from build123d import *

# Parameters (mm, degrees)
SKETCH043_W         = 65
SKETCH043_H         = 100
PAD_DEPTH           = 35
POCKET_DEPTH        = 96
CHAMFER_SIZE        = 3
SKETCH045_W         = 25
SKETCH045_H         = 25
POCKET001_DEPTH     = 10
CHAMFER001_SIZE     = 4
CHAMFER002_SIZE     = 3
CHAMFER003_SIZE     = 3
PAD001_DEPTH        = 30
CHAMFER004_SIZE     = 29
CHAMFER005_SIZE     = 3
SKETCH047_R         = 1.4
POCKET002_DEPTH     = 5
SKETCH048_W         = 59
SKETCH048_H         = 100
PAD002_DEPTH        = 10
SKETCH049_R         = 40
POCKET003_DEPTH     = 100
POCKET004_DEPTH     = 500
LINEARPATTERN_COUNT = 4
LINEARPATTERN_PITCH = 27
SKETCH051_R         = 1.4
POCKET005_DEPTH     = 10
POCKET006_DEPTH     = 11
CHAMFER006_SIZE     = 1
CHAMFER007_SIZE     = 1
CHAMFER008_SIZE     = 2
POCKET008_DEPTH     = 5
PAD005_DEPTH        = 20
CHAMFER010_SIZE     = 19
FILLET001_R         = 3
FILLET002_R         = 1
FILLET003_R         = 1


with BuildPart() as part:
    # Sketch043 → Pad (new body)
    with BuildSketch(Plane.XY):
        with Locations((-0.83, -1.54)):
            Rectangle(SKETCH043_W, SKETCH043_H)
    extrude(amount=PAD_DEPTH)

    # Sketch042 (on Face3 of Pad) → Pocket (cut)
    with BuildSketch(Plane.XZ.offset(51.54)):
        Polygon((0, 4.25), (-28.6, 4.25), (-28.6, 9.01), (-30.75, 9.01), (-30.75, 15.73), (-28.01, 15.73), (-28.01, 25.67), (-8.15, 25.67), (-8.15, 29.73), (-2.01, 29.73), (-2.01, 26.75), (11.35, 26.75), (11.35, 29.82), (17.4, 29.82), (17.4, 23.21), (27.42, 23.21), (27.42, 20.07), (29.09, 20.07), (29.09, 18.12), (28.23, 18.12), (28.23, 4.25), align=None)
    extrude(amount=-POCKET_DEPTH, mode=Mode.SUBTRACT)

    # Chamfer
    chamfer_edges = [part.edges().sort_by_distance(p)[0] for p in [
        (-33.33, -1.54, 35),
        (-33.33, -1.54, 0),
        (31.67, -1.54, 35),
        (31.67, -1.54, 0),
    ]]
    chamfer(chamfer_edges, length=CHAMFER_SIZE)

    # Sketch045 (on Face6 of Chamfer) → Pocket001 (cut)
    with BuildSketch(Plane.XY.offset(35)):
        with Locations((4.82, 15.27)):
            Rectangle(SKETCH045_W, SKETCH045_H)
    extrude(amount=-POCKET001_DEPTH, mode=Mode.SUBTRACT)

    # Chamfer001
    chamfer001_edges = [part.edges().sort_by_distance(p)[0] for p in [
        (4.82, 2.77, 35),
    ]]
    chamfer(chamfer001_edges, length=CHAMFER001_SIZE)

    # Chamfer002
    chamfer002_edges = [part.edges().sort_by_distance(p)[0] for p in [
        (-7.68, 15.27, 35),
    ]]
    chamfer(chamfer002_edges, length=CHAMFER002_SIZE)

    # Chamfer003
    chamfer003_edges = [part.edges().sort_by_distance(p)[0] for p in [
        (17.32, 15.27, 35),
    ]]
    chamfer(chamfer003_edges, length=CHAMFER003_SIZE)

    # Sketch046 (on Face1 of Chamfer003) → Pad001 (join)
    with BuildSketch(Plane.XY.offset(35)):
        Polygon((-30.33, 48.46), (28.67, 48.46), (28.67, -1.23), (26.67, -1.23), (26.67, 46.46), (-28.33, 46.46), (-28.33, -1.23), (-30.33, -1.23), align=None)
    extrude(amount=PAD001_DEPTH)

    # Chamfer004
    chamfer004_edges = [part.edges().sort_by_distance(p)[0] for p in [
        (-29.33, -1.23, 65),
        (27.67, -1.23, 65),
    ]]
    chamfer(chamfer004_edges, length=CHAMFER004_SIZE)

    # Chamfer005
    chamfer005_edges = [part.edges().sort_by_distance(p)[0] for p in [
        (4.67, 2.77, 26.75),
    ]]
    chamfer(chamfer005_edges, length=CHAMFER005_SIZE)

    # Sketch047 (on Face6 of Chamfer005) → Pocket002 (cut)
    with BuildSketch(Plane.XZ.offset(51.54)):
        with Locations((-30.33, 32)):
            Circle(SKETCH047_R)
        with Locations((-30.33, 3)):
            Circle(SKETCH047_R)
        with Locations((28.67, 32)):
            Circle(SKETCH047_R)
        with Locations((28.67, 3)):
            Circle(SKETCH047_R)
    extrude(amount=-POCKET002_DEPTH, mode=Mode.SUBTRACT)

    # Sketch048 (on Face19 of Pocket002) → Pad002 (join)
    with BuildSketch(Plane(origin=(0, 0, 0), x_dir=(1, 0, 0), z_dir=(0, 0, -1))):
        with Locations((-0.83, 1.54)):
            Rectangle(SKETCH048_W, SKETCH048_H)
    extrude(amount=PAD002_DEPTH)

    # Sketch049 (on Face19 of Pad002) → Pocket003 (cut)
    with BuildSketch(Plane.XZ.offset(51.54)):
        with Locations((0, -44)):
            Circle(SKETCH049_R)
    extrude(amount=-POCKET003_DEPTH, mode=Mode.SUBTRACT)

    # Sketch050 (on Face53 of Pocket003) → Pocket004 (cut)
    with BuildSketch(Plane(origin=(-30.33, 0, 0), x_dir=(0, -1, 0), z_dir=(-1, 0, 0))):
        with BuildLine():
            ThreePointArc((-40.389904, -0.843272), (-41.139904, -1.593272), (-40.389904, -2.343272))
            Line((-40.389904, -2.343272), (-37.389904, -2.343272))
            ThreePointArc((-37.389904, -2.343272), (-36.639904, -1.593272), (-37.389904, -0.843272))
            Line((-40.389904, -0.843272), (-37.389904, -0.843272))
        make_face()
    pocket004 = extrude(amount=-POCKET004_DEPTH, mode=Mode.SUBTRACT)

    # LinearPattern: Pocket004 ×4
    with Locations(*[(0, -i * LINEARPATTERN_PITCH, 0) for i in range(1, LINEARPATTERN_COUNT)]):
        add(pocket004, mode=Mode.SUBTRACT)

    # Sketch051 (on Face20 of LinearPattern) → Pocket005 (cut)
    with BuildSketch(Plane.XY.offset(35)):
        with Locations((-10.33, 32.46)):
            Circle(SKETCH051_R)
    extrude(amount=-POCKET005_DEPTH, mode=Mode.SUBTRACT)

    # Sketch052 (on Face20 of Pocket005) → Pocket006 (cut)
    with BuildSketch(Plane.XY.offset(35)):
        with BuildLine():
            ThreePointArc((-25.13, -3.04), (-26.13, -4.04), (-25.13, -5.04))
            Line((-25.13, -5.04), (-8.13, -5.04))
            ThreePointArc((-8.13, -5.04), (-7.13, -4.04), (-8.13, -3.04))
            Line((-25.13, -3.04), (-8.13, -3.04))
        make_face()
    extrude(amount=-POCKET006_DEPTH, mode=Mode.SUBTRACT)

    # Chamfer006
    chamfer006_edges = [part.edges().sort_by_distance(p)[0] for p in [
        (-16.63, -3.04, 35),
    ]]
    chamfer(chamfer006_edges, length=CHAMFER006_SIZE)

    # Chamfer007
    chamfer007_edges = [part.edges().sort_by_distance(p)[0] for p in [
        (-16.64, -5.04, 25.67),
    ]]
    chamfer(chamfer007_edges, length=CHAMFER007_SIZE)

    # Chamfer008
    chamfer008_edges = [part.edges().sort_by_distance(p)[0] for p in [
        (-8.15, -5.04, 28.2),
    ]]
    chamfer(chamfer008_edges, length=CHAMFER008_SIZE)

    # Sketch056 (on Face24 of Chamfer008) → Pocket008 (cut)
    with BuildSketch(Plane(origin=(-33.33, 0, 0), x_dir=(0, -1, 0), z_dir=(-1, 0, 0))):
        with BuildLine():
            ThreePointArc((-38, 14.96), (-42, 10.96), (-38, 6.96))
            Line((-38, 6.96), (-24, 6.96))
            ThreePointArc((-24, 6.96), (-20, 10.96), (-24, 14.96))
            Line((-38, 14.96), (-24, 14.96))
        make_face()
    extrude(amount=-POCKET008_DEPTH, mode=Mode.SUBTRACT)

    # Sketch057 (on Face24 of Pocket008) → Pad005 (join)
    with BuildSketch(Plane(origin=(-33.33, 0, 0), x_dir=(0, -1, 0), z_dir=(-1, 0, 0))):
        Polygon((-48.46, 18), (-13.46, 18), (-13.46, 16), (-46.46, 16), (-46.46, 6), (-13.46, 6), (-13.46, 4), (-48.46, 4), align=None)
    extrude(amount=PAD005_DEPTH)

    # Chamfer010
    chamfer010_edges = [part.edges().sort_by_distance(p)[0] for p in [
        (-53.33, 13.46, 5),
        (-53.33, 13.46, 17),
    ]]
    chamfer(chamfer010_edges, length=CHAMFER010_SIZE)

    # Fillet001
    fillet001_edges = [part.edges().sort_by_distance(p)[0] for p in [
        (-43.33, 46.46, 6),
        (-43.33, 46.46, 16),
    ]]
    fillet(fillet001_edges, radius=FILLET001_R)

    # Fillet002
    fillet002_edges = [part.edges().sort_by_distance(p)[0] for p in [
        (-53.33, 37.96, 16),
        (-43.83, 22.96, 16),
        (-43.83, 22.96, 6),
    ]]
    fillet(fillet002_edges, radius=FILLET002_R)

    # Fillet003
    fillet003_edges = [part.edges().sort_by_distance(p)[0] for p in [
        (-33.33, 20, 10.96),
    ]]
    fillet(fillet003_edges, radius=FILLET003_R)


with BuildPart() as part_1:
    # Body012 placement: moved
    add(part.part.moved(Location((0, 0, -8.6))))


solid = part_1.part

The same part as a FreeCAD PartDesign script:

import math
import FreeCAD as App
import Part
import Sketcher

V = App.Vector
Q = App.Units.Quantity


def edges_at(feature, points):
    """Names of the edges that pass closest to the given points."""
    edges = feature.Shape.Edges
    near = lambda p: min(range(len(edges)), key=lambda i: edges[i].distToShape(Part.Vertex(*p))[0])
    return sorted({f"Edge{near(p) + 1}" for p in points})

doc = App.newDocument("Part")
params = doc.addObject("Spreadsheet::Sheet", "Params")
for row, (alias, value) in enumerate([
    ("sketch1_width", "65 mm"),
    ("sketch1_height", "100 mm"),
    ("pad1_length", "35 mm"),
    ("sketch2_width", "56.83 mm"),
    ("sketch2_width2", "0.86 mm"),
    ("sketch2_width3", "1.67 mm"),
    ("sketch2_width4", "10.02 mm"),
    ("sketch2_width5", "6.05 mm"),
    ("pocket1_length", "96 mm"),
    ("chamfer_size", "3 mm"),
    ("sketch3_width", "25 mm"),
    ("pocket2_length", "10 mm"),
    ("chamfer2_size", "4 mm"),
    ("chamfer3_size", "3 mm"),
    ("chamfer4_size", "3 mm"),
    ("sketch4_width", "59 mm"),
    ("sketch4_width2", "2 mm"),
    ("sketch4_height", "49.69 mm"),
    ("pad2_length", "30 mm"),
    ("chamfer5_size", "29 mm"),
    ("chamfer6_size", "3 mm"),
    ("sketch5_diameter", "2.8 mm"),
    ("pocket3_length", "5 mm"),
    ("sketch6_width", "59 mm"),
    ("sketch6_height", "100 mm"),
    ("pad3_length", "10 mm"),
    ("sketch7_diameter", "80 mm"),
    ("pocket4_length", "100 mm"),
    ("sketch8_width", "3 mm"),
    ("sketch8_radius", "0.75 mm"),
    ("pocket5_length", "500 mm"),
    ("linearpattern_pitch", "27 mm"),
    ("sketch9_diameter", "2.8 mm"),
    ("pocket6_length", "10 mm"),
    ("sketch10_radius", "1 mm"),
    ("sketch10_width", "17 mm"),
    ("pocket7_length", "11 mm"),
    ("chamfer7_size", "1 mm"),
    ("chamfer8_size", "1 mm"),
    ("chamfer9_size", "2 mm"),
    ("sketch11_radius", "4 mm"),
    ("sketch11_width", "14 mm"),
    ("pocket8_length", "5 mm"),
    ("sketch12_width", "35 mm"),
    ("sketch12_width2", "33 mm"),
    ("sketch12_height", "14 mm"),
    ("sketch12_height2", "2 mm"),
    ("pad4_length", "20 mm"),
    ("chamfer10_size", "19 mm"),
    ("fillet_radius", "3 mm"),
    ("fillet2_radius", "1 mm"),
    ("fillet3_radius", "1 mm"),
], start=1):
    params.set(f"A{row}", alias)
    params.set(f"B{row}", "=" + value)
    params.setAlias(f"B{row}", alias)

body = doc.addObject("PartDesign::Body", "Body")

# Sketch on XY plane
sketch1 = doc.addObject("Sketcher::SketchObject", "Sketch")
body.addObject(sketch1)
sketch1.AttachmentSupport = (doc.XY_Plane, [""])
sketch1.MapMode = "FlatFace"
sketch1.addGeometry([
    Part.LineSegment(V(-33, 48, 0), V(-33, -52, 0)),
    Part.LineSegment(V(-33, -52, 0), V(32, -52, 0)),
    Part.LineSegment(V(32, -52, 0), V(32, 48, 0)),
    Part.LineSegment(V(32, 48, 0), V(-33, 48, 0)),
], False)
sketch1.addConstraint([
    Sketcher.Constraint("Coincident", 0, 2, 1, 1),
    Sketcher.Constraint("Coincident", 1, 2, 2, 1),
    Sketcher.Constraint("Coincident", 2, 2, 3, 1),
    Sketcher.Constraint("Coincident", 3, 2, 0, 1),
    Sketcher.Constraint("Vertical", 0),
    Sketcher.Constraint("Horizontal", 1),
    Sketcher.Constraint("Vertical", 2),
    Sketcher.Constraint("Horizontal", 3),
    Sketcher.Constraint("DistanceX", 1, 1, 1, 2, Q("65 mm")),
    Sketcher.Constraint("DistanceY", 0, 2, 0, 1, Q("100 mm")),
    Sketcher.Constraint("DistanceX", 0, 2, -1, 1, Q("33.33 mm")),
    Sketcher.Constraint("DistanceY", 0, 2, -1, 1, Q("51.54 mm")),
])
sketch1.setExpression("Constraints[8]", "Params.sketch1_width")
sketch1.setExpression("Constraints[9]", "Params.sketch1_height")
pad1 = doc.addObject("PartDesign::Pad", "Pad")
body.addObject(pad1)
pad1.Profile = sketch1
pad1.setExpression("Length", "Params.pad1_length")

# Sketch on XZ plane
sketch2 = doc.addObject("Sketcher::SketchObject", "Sketch001")
body.addObject(sketch2)
sketch2.AttachmentSupport = (doc.XZ_Plane, [""])
sketch2.MapMode = "FlatFace"
sketch2.AttachmentOffset = App.Placement(V(0, 0, 51.54), App.Rotation())
sketch2.addGeometry([
    Part.LineSegment(V(-28.6, 4.2, 0), V(28.2, 4.2, 0)),  # 0
    Part.LineSegment(V(28.2, 4.2, 0), V(28.2, 18.1, 0)),  # 1
    Part.LineSegment(V(28.2, 18.1, 0), V(29.1, 18.1, 0)),  # 2
    Part.LineSegment(V(29.1, 18.1, 0), V(29.1, 20.1, 0)),  # 3
    Part.LineSegment(V(29.1, 20.1, 0), V(27.4, 20.1, 0)),  # 4
    Part.LineSegment(V(27.4, 20.1, 0), V(27.4, 23.2, 0)),  # 5
    Part.LineSegment(V(27.4, 23.2, 0), V(17.4, 23.2, 0)),  # 6
    Part.LineSegment(V(17.4, 23.2, 0), V(17.4, 29.8, 0)),  # 7
    Part.LineSegment(V(17.4, 29.8, 0), V(11.3, 29.8, 0)),  # 8
    Part.LineSegment(V(11.3, 29.8, 0), V(11.3, 26.8, 0)),  # 9
    Part.LineSegment(V(11.3, 26.8, 0), V(-2, 26.8, 0)),  # 10
    Part.LineSegment(V(-2, 26.8, 0), V(-2, 29.7, 0)),  # 11
    Part.LineSegment(V(-2, 29.7, 0), V(-8.2, 29.7, 0)),  # 12
    Part.LineSegment(V(-8.2, 29.7, 0), V(-8.2, 25.7, 0)),  # 13
    Part.LineSegment(V(-8.2, 25.7, 0), V(-28, 25.7, 0)),  # 14
    Part.LineSegment(V(-28, 25.7, 0), V(-28, 15.7, 0)),  # 15
    Part.LineSegment(V(-28, 15.7, 0), V(-30.8, 15.7, 0)),  # 16
    Part.LineSegment(V(-30.8, 15.7, 0), V(-30.8, 9, 0)),  # 17
    Part.LineSegment(V(-30.8, 9, 0), V(-28.6, 9, 0)),  # 18
    Part.LineSegment(V(-28.6, 9, 0), V(-28.6, 4.2, 0)),  # 19
], False)
sketch2.addConstraint([
    Sketcher.Constraint("Coincident", 0, 2, 1, 1),
    Sketcher.Constraint("Coincident", 1, 2, 2, 1),
    Sketcher.Constraint("Coincident", 2, 2, 3, 1),
    Sketcher.Constraint("Coincident", 3, 2, 4, 1),
    Sketcher.Constraint("Coincident", 4, 2, 5, 1),
    Sketcher.Constraint("Coincident", 5, 2, 6, 1),
    Sketcher.Constraint("Coincident", 6, 2, 7, 1),
    Sketcher.Constraint("Coincident", 7, 2, 8, 1),
    Sketcher.Constraint("Coincident", 8, 2, 9, 1),
    Sketcher.Constraint("Coincident", 9, 2, 10, 1),
    Sketcher.Constraint("Coincident", 10, 2, 11, 1),
    Sketcher.Constraint("Coincident", 11, 2, 12, 1),
    Sketcher.Constraint("Coincident", 12, 2, 13, 1),
    Sketcher.Constraint("Coincident", 13, 2, 14, 1),
    Sketcher.Constraint("Coincident", 14, 2, 15, 1),
    Sketcher.Constraint("Coincident", 15, 2, 16, 1),
    Sketcher.Constraint("Coincident", 16, 2, 17, 1),
    Sketcher.Constraint("Coincident", 17, 2, 18, 1),
    Sketcher.Constraint("Coincident", 18, 2, 19, 1),
    Sketcher.Constraint("Coincident", 19, 2, 0, 1),
    Sketcher.Constraint("Horizontal", 0),
    Sketcher.Constraint("Vertical", 1),
    Sketcher.Constraint("Horizontal", 2),
    Sketcher.Constraint("Vertical", 3),
    Sketcher.Constraint("Horizontal", 4),
    Sketcher.Constraint("Vertical", 5),
    Sketcher.Constraint("Horizontal", 6),
    Sketcher.Constraint("Vertical", 7),
    Sketcher.Constraint("Horizontal", 8),
    Sketcher.Constraint("Vertical", 9),
    Sketcher.Constraint("Horizontal", 10),
    Sketcher.Constraint("Vertical", 11),
    Sketcher.Constraint("Horizontal", 12),
    Sketcher.Constraint("Vertical", 13),
    Sketcher.Constraint("Horizontal", 14),
    Sketcher.Constraint("Vertical", 15),
    Sketcher.Constraint("Horizontal", 16),
    Sketcher.Constraint("Vertical", 17),
    Sketcher.Constraint("Horizontal", 18),
    Sketcher.Constraint("Vertical", 19),
    Sketcher.Constraint("DistanceX", 14, 2, 10, 2, Q("26 mm")),
    Sketcher.Constraint("DistanceY", 15, 2, 12, 2, Q("14 mm")),
    Sketcher.Constraint("DistanceX", 0, 1, 0, 2, Q("56.83 mm")),
    Sketcher.Constraint("DistanceX", 2, 1, 2, 2, Q("0.86 mm")),
    Sketcher.Constraint("DistanceX", 4, 2, 4, 1, Q("1.67 mm")),
    Sketcher.Constraint("DistanceX", 6, 2, 6, 1, Q("10.02 mm")),
    Sketcher.Constraint("DistanceX", 8, 2, 8, 1, Q("6.05 mm")),
    Sketcher.Constraint("DistanceX", 10, 2, 10, 1, Q("13.36 mm")),
    Sketcher.Constraint("DistanceX", 12, 2, 12, 1, Q("6.14 mm")),
    Sketcher.Constraint("DistanceX", 16, 2, 16, 1, Q("2.74 mm")),
    Sketcher.Constraint("DistanceY", 1, 1, 1, 2, Q("13.87 mm")),
    Sketcher.Constraint("DistanceY", 3, 1, 3, 2, Q("1.95 mm")),
    Sketcher.Constraint("DistanceY", 5, 1, 5, 2, Q("3.14 mm")),
    Sketcher.Constraint("DistanceY", 7, 1, 7, 2, Q("6.61 mm")),
    Sketcher.Constraint("DistanceY", 9, 2, 9, 1, Q("3.07 mm")),
    Sketcher.Constraint("DistanceY", 11, 1, 11, 2, Q("2.98 mm")),
    Sketcher.Constraint("DistanceY", 13, 2, 13, 1, Q("4.06 mm")),
    Sketcher.Constraint("DistanceY", 17, 2, 17, 1, Q("6.72 mm")),
    Sketcher.Constraint("DistanceX", -1, 1, 6, 2, Q("17.4 mm")),
    Sketcher.Constraint("DistanceY", -1, 1, 0, 2, Q("4.25 mm")),
])
sketch2.setExpression("Constraints[42]", "Params.sketch2_width")
sketch2.setExpression("Constraints[43]", "Params.sketch2_width2")
sketch2.setExpression("Constraints[44]", "Params.sketch2_width3")
sketch2.setExpression("Constraints[45]", "Params.sketch2_width4")
sketch2.setExpression("Constraints[46]", "Params.sketch2_width5")
pocket1 = doc.addObject("PartDesign::Pocket", "Pocket")
body.addObject(pocket1)
pocket1.Profile = sketch2
pocket1.setExpression("Length", "Params.pocket1_length")
doc.recompute()

chamfer = doc.addObject("PartDesign::Chamfer", "Chamfer")
body.addObject(chamfer)
chamfer.Base = (pocket1, edges_at(pocket1, [
    (-33.33, -1.54, 35),
    (-33.33, -1.54, 0),
    (31.67, -1.54, 35),
    (31.67, -1.54, 0),
]))
chamfer.setExpression("Size", "Params.chamfer_size")

# Sketch on XY plane
sketch3 = doc.addObject("Sketcher::SketchObject", "Sketch002")
body.addObject(sketch3)
sketch3.AttachmentSupport = (doc.XY_Plane, [""])
sketch3.MapMode = "FlatFace"
sketch3.AttachmentOffset = App.Placement(V(0, 0, 35), App.Rotation())
sketch3.addGeometry([
    Part.LineSegment(V(-8, 28, 0), V(-8, 3, 0)),
    Part.LineSegment(V(-8, 3, 0), V(17, 3, 0)),
    Part.LineSegment(V(17, 3, 0), V(17, 28, 0)),
    Part.LineSegment(V(17, 28, 0), V(-8, 28, 0)),
], False)
sketch3.addConstraint([
    Sketcher.Constraint("Coincident", 0, 2, 1, 1),
    Sketcher.Constraint("Coincident", 1, 2, 2, 1),
    Sketcher.Constraint("Coincident", 2, 2, 3, 1),
    Sketcher.Constraint("Coincident", 3, 2, 0, 1),
    Sketcher.Constraint("Vertical", 0),
    Sketcher.Constraint("Horizontal", 1),
    Sketcher.Constraint("Vertical", 2),
    Sketcher.Constraint("Horizontal", 3),
    Sketcher.Constraint("Equal", 3, 0),
    Sketcher.Constraint("DistanceX", 1, 1, 1, 2, Q("25 mm")),
    Sketcher.Constraint("DistanceX", 0, 2, -1, 1, Q("7.68 mm")),
    Sketcher.Constraint("DistanceY", -1, 1, 0, 2, Q("2.77 mm")),
])
sketch3.setExpression("Constraints[9]", "Params.sketch3_width")
pocket2 = doc.addObject("PartDesign::Pocket", "Pocket001")
body.addObject(pocket2)
pocket2.Profile = sketch3
pocket2.setExpression("Length", "Params.pocket2_length")
doc.recompute()

chamfer2 = doc.addObject("PartDesign::Chamfer", "Chamfer001")
body.addObject(chamfer2)
chamfer2.Base = (pocket2, edges_at(pocket2, [(4.82, 2.77, 35)]))
chamfer2.setExpression("Size", "Params.chamfer2_size")
doc.recompute()

chamfer3 = doc.addObject("PartDesign::Chamfer", "Chamfer002")
body.addObject(chamfer3)
chamfer3.Base = (chamfer2, edges_at(chamfer2, [(-7.68, 13.27, 35)]))
chamfer3.setExpression("Size", "Params.chamfer3_size")
doc.recompute()

chamfer4 = doc.addObject("PartDesign::Chamfer", "Chamfer003")
body.addObject(chamfer4)
chamfer4.Base = (chamfer3, edges_at(chamfer3, [(17.32, 13.27, 35)]))
chamfer4.setExpression("Size", "Params.chamfer4_size")

# Sketch on XY plane
sketch4 = doc.addObject("Sketcher::SketchObject", "Sketch003")
body.addObject(sketch4)
sketch4.AttachmentSupport = (doc.XY_Plane, [""])
sketch4.MapMode = "FlatFace"
sketch4.AttachmentOffset = App.Placement(V(0, 0, 35), App.Rotation())
sketch4.addGeometry([
    Part.LineSegment(V(28.7, 48.5, 0), V(-30.3, 48.5, 0)),  # 0
    Part.LineSegment(V(-30.3, 48.5, 0), V(-30.3, -1.2, 0)),  # 1
    Part.LineSegment(V(-30.3, -1.2, 0), V(-28.3, -1.2, 0)),  # 2
    Part.LineSegment(V(-28.3, -1.2, 0), V(-28.3, 46.5, 0)),  # 3
    Part.LineSegment(V(-28.3, 46.5, 0), V(26.7, 46.5, 0)),  # 4
    Part.LineSegment(V(26.7, 46.5, 0), V(26.7, -1.2, 0)),  # 5
    Part.LineSegment(V(26.7, -1.2, 0), V(28.7, -1.2, 0)),  # 6
    Part.LineSegment(V(28.7, -1.2, 0), V(28.7, 48.5, 0)),  # 7
], False)
sketch4.addConstraint([
    Sketcher.Constraint("Coincident", 0, 2, 1, 1),
    Sketcher.Constraint("Coincident", 1, 2, 2, 1),
    Sketcher.Constraint("Coincident", 2, 2, 3, 1),
    Sketcher.Constraint("Coincident", 3, 2, 4, 1),
    Sketcher.Constraint("Coincident", 4, 2, 5, 1),
    Sketcher.Constraint("Coincident", 5, 2, 6, 1),
    Sketcher.Constraint("Coincident", 6, 2, 7, 1),
    Sketcher.Constraint("Coincident", 7, 2, 0, 1),
    Sketcher.Constraint("Horizontal", 0),
    Sketcher.Constraint("Vertical", 1),
    Sketcher.Constraint("Horizontal", 2),
    Sketcher.Constraint("Vertical", 3),
    Sketcher.Constraint("Horizontal", 4),
    Sketcher.Constraint("Vertical", 5),
    Sketcher.Constraint("Horizontal", 6),
    Sketcher.Constraint("Vertical", 7),
    Sketcher.Constraint("Horizontal", 2, 2, 5, 2),
    Sketcher.Constraint("Equal", 2, 6),
    Sketcher.Constraint("DistanceX", 0, 2, 0, 1, Q("59 mm")),
    Sketcher.Constraint("DistanceX", 2, 1, 2, 2, Q("2 mm")),
    Sketcher.Constraint("DistanceY", 3, 2, 0, 2, Q("2 mm")),
    Sketcher.Constraint("DistanceY", 1, 2, 1, 1, Q("49.69 mm")),
    Sketcher.Constraint("DistanceX", 0, 2, -1, 1, Q("30.33 mm")),
    Sketcher.Constraint("DistanceY", -1, 1, 0, 2, Q("48.46 mm")),
])
sketch4.setExpression("Constraints[18]", "Params.sketch4_width")
sketch4.setExpression("Constraints[19]", "Params.sketch4_width2")
sketch4.setExpression("Constraints[21]", "Params.sketch4_height")
pad2 = doc.addObject("PartDesign::Pad", "Pad001")
body.addObject(pad2)
pad2.Profile = sketch4
pad2.setExpression("Length", "Params.pad2_length")
doc.recompute()

chamfer5 = doc.addObject("PartDesign::Chamfer", "Chamfer004")
body.addObject(chamfer5)
chamfer5.Base = (pad2, edges_at(pad2, [(-29.33, -1.23, 65), (27.67, -1.23, 65)]))
chamfer5.setExpression("Size", "Params.chamfer5_size")
doc.recompute()

chamfer6 = doc.addObject("PartDesign::Chamfer", "Chamfer005")
body.addObject(chamfer6)
chamfer6.Base = (chamfer5, edges_at(chamfer5, [(4.67, 2.77, 26.75)]))
chamfer6.setExpression("Size", "Params.chamfer6_size")

# Sketch on XZ plane
sketch5 = doc.addObject("Sketcher::SketchObject", "Sketch004")
body.addObject(sketch5)
sketch5.AttachmentSupport = (doc.XZ_Plane, [""])
sketch5.MapMode = "FlatFace"
sketch5.AttachmentOffset = App.Placement(V(0, 0, 51.54), App.Rotation())
sketch5.addGeometry([
    Part.Circle(V(-30.3, 32, 0), V(0, 0, 1), 1.4),
    Part.Circle(V(-30.3, 3, 0), V(0, 0, 1), 1.4),
    Part.Circle(V(28.7, 32, 0), V(0, 0, 1), 1.4),
    Part.Circle(V(28.7, 3, 0), V(0, 0, 1), 1.4),
], False)
sketch5.addConstraint([
    Sketcher.Constraint("Equal", 0, 1),
    Sketcher.Constraint("Equal", 1, 2),
    Sketcher.Constraint("Equal", 2, 3),
    Sketcher.Constraint("Horizontal", 0, 3, 2, 3),
    Sketcher.Constraint("Horizontal", 1, 3, 3, 3),
    Sketcher.Constraint("Vertical", 0, 3, 1, 3),
    Sketcher.Constraint("Vertical", 2, 3, 3, 3),
    Sketcher.Constraint("Diameter", 0, Q("2.8 mm")),
    Sketcher.Constraint("DistanceY", -1, 1, 0, 3, Q("32 mm")),
    Sketcher.Constraint("DistanceY", -1, 1, 1, 3, Q("3 mm")),
    Sketcher.Constraint("DistanceX", 0, 3, 2, 3, Q("59 mm")),
    Sketcher.Constraint("DistanceX", 0, 3, -1, 1, Q("30.33 mm")),
])
sketch5.setExpression("Constraints[7]", "Params.sketch5_diameter")
pocket3 = doc.addObject("PartDesign::Pocket", "Pocket002")
body.addObject(pocket3)
pocket3.Profile = sketch5
pocket3.setExpression("Length", "Params.pocket3_length")

# Sketch on XY plane
sketch6 = doc.addObject("Sketcher::SketchObject", "Sketch005")
body.addObject(sketch6)
sketch6.AttachmentSupport = (doc.XY_Plane, [""])
sketch6.MapMode = "FlatFace"
sketch6.addGeometry([
    Part.LineSegment(V(-30, -52, 0), V(-30, 48, 0)),
    Part.LineSegment(V(-30, 48, 0), V(29, 48, 0)),
    Part.LineSegment(V(29, 48, 0), V(29, -52, 0)),
    Part.LineSegment(V(29, -52, 0), V(-30, -52, 0)),
], False)
sketch6.addConstraint([
    Sketcher.Constraint("Coincident", 0, 2, 1, 1),
    Sketcher.Constraint("Coincident", 1, 2, 2, 1),
    Sketcher.Constraint("Coincident", 2, 2, 3, 1),
    Sketcher.Constraint("Coincident", 3, 2, 0, 1),
    Sketcher.Constraint("Vertical", 0),
    Sketcher.Constraint("Horizontal", 1),
    Sketcher.Constraint("Vertical", 2),
    Sketcher.Constraint("Horizontal", 3),
    Sketcher.Constraint("DistanceX", 1, 1, 1, 2, Q("59 mm")),
    Sketcher.Constraint("DistanceY", 0, 1, 0, 2, Q("100 mm")),
    Sketcher.Constraint("DistanceX", 0, 2, -1, 1, Q("30.33 mm")),
    Sketcher.Constraint("DistanceY", -1, 1, 0, 2, Q("48.46 mm")),
])
sketch6.setExpression("Constraints[8]", "Params.sketch6_width")
sketch6.setExpression("Constraints[9]", "Params.sketch6_height")
pad3 = doc.addObject("PartDesign::Pad", "Pad002")
body.addObject(pad3)
pad3.Profile = sketch6
pad3.setExpression("Length", "Params.pad3_length")
pad3.Reversed = True

# Sketch on XZ plane
sketch7 = doc.addObject("Sketcher::SketchObject", "Sketch006")
body.addObject(sketch7)
sketch7.AttachmentSupport = (doc.XZ_Plane, [""])
sketch7.MapMode = "FlatFace"
sketch7.AttachmentOffset = App.Placement(V(0, 0, 51.54), App.Rotation())
sketch7.addGeometry(Part.Circle(V(0, -44, 0), V(0, 0, 1), 40), False)
sketch7.addConstraint([
    Sketcher.Constraint("PointOnObject", 0, 3, -2),
    Sketcher.Constraint("Diameter", 0, Q("80 mm")),
    Sketcher.Constraint("DistanceY", 0, 3, -1, 1, Q("44 mm")),
])
sketch7.setExpression("Constraints[1]", "Params.sketch7_diameter")
pocket4 = doc.addObject("PartDesign::Pocket", "Pocket003")
body.addObject(pocket4)
pocket4.Profile = sketch7
pocket4.setExpression("Length", "Params.pocket4_length")

# Sketch on YZ plane
sketch8 = doc.addObject("Sketcher::SketchObject", "Sketch007")
body.addObject(sketch8)
sketch8.AttachmentSupport = (doc.YZ_Plane, [""])
sketch8.MapMode = "FlatFace"
sketch8.AttachmentOffset = App.Placement(V(0, 0, -30.33), App.Rotation())
sketch8.addGeometry([
    Part.ArcOfCircle(Part.Circle(V(40.4, -1.6, 0), V(0, 0, 1), 0.8), math.radians(-90), math.radians(90)),
    Part.LineSegment(V(40.4, -2.3, 0), V(37.4, -2.3, 0)),
    Part.ArcOfCircle(Part.Circle(V(37.4, -1.6, 0), V(0, 0, 1), 0.8), math.radians(90), math.radians(270)),
    Part.LineSegment(V(37.4, -0.8, 0), V(40.4, -0.8, 0)),
], False)
sketch8.addConstraint([
    Sketcher.Constraint("Tangent", 0, 1, 1, 1),
    Sketcher.Constraint("Tangent", 1, 2, 2, 2),
    Sketcher.Constraint("Tangent", 2, 1, 3, 1),
    Sketcher.Constraint("Tangent", 3, 2, 0, 2),
    Sketcher.Constraint("Horizontal", 1),
    Sketcher.Constraint("Horizontal", 3),
    Sketcher.Constraint("DistanceX", 1, 2, 1, 1, Q("3 mm")),
    Sketcher.Constraint("Radius", 0, Q("0.75 mm")),
    Sketcher.Constraint("DistanceY", 0, 1, -1, 1, Q("2.343272 mm")),
    Sketcher.Constraint("DistanceX", -1, 1, 0, 3, Q("40.389904 mm")),
])
sketch8.setExpression("Constraints[6]", "Params.sketch8_width")
sketch8.setExpression("Constraints[7]", "Params.sketch8_radius")
pocket5 = doc.addObject("PartDesign::Pocket", "Pocket004")
body.addObject(pocket5)
pocket5.Profile = sketch8
pocket5.setExpression("Length", "Params.pocket5_length")
pocket5.Reversed = True
doc.recompute()

linearpattern = doc.addObject("PartDesign::LinearPattern", "LinearPattern")
body.addObject(linearpattern)
linearpattern.Originals = [pocket5]
linearpattern.Direction = (doc.Y_Axis, [""])
linearpattern.Mode = "offset"
linearpattern.setExpression("Offset", "Params.linearpattern_pitch")
linearpattern.Occurrences = 4
linearpattern.Reversed = True
body.Tip = linearpattern

# Sketch on XY plane
sketch9 = doc.addObject("Sketcher::SketchObject", "Sketch008")
body.addObject(sketch9)
sketch9.AttachmentSupport = (doc.XY_Plane, [""])
sketch9.MapMode = "FlatFace"
sketch9.AttachmentOffset = App.Placement(V(0, 0, 35), App.Rotation())
sketch9.addGeometry(Part.Circle(V(-10.3, 32.5, 0), V(0, 0, 1), 1.4), False)
sketch9.addConstraint([
    Sketcher.Constraint("Diameter", 0, Q("2.8 mm")),
    Sketcher.Constraint("DistanceX", 0, 3, -1, 1, Q("10.33 mm")),
    Sketcher.Constraint("DistanceY", -1, 1, 0, 3, Q("32.46 mm")),
])
sketch9.setExpression("Constraints[0]", "Params.sketch9_diameter")
pocket6 = doc.addObject("PartDesign::Pocket", "Pocket005")
body.addObject(pocket6)
pocket6.Profile = sketch9
pocket6.setExpression("Length", "Params.pocket6_length")

# Sketch on XY plane
sketch10 = doc.addObject("Sketcher::SketchObject", "Sketch009")
body.addObject(sketch10)
sketch10.AttachmentSupport = (doc.XY_Plane, [""])
sketch10.MapMode = "FlatFace"
sketch10.AttachmentOffset = App.Placement(V(0, 0, 35), App.Rotation())
sketch10.addGeometry([
    Part.ArcOfCircle(Part.Circle(V(-25.1, -4, 0), V(0, 0, 1), 1), math.radians(90), math.radians(270)),
    Part.LineSegment(V(-25.1, -5, 0), V(-8.1, -5, 0)),
    Part.ArcOfCircle(Part.Circle(V(-8.1, -4, 0), V(0, 0, 1), 1), math.radians(-90), math.radians(90)),
    Part.LineSegment(V(-8.1, -3, 0), V(-25.1, -3, 0)),
], False)
sketch10.addConstraint([
    Sketcher.Constraint("Tangent", 0, 2, 1, 1),
    Sketcher.Constraint("Tangent", 1, 2, 2, 1),
    Sketcher.Constraint("Tangent", 2, 2, 3, 1),
    Sketcher.Constraint("Tangent", 3, 2, 0, 1),
    Sketcher.Constraint("Horizontal", 1),
    Sketcher.Constraint("Horizontal", 3),
    Sketcher.Constraint("Radius", 0, Q("1 mm")),
    Sketcher.Constraint("DistanceX", 1, 1, 1, 2, Q("17 mm")),
    Sketcher.Constraint("DistanceX", 0, 3, -1, 1, Q("25.13 mm")),
    Sketcher.Constraint("DistanceY", 0, 3, -1, 1, Q("4.04 mm")),
])
sketch10.setExpression("Constraints[6]", "Params.sketch10_radius")
sketch10.setExpression("Constraints[7]", "Params.sketch10_width")
pocket7 = doc.addObject("PartDesign::Pocket", "Pocket006")
body.addObject(pocket7)
pocket7.Profile = sketch10
pocket7.setExpression("Length", "Params.pocket7_length")
doc.recompute()

chamfer7 = doc.addObject("PartDesign::Chamfer", "Chamfer006")
body.addObject(chamfer7)
chamfer7.Base = (pocket7, edges_at(pocket7, [(-16.63, -3.04, 35)]))
chamfer7.setExpression("Size", "Params.chamfer7_size")
doc.recompute()

chamfer8 = doc.addObject("PartDesign::Chamfer", "Chamfer007")
body.addObject(chamfer8)
chamfer8.Base = (chamfer7, edges_at(chamfer7, [(-16.64, -5.04, 25.67)]))
chamfer8.setExpression("Size", "Params.chamfer8_size")
doc.recompute()

chamfer9 = doc.addObject("PartDesign::Chamfer", "Chamfer008")
body.addObject(chamfer9)
chamfer9.Base = (chamfer8, edges_at(chamfer8, [(-8.15, -5.04, 28.2)]))
chamfer9.setExpression("Size", "Params.chamfer9_size")

# Sketch on YZ plane
sketch11 = doc.addObject("Sketcher::SketchObject", "Sketch010")
body.addObject(sketch11)
sketch11.AttachmentSupport = (doc.YZ_Plane, [""])
sketch11.MapMode = "FlatFace"
sketch11.AttachmentOffset = App.Placement(V(0, 0, -33.33), App.Rotation())
sketch11.addGeometry([
    Part.ArcOfCircle(Part.Circle(V(38, 11, 0), V(0, 0, 1), 4), math.radians(-90), math.radians(90)),
    Part.LineSegment(V(38, 7, 0), V(24, 7, 0)),
    Part.ArcOfCircle(Part.Circle(V(24, 11, 0), V(0, 0, 1), 4), math.radians(90), math.radians(270)),
    Part.LineSegment(V(24, 15, 0), V(38, 15, 0)),
], False)
sketch11.addConstraint([
    Sketcher.Constraint("Tangent", 0, 1, 1, 1),
    Sketcher.Constraint("Tangent", 1, 2, 2, 2),
    Sketcher.Constraint("Tangent", 2, 1, 3, 1),
    Sketcher.Constraint("Tangent", 3, 2, 0, 2),
    Sketcher.Constraint("Horizontal", 1),
    Sketcher.Constraint("Horizontal", 3),
    Sketcher.Constraint("Radius", 0, Q("4 mm")),
    Sketcher.Constraint("DistanceX", 1, 2, 1, 1, Q("14 mm")),
    Sketcher.Constraint("DistanceX", -1, 1, 0, 3, Q("38 mm")),
    Sketcher.Constraint("DistanceY", -1, 1, 0, 3, Q("10.96 mm")),
])
sketch11.setExpression("Constraints[6]", "Params.sketch11_radius")
sketch11.setExpression("Constraints[7]", "Params.sketch11_width")
pocket8 = doc.addObject("PartDesign::Pocket", "Pocket007")
body.addObject(pocket8)
pocket8.Profile = sketch11
pocket8.setExpression("Length", "Params.pocket8_length")
pocket8.Reversed = True

# Sketch on YZ plane
sketch12 = doc.addObject("Sketcher::SketchObject", "Sketch011")
body.addObject(sketch12)
sketch12.AttachmentSupport = (doc.YZ_Plane, [""])
sketch12.MapMode = "FlatFace"
sketch12.AttachmentOffset = App.Placement(V(0, 0, -33.33), App.Rotation())
sketch12.addGeometry([
    Part.LineSegment(V(13.5, 18, 0), V(48.5, 18, 0)),  # 0
    Part.LineSegment(V(48.5, 18, 0), V(48.5, 4, 0)),  # 1
    Part.LineSegment(V(48.5, 4, 0), V(13.5, 4, 0)),  # 2
    Part.LineSegment(V(13.5, 4, 0), V(13.5, 6, 0)),  # 3
    Part.LineSegment(V(13.5, 6, 0), V(46.5, 6, 0)),  # 4
    Part.LineSegment(V(46.5, 6, 0), V(46.5, 16, 0)),  # 5
    Part.LineSegment(V(46.5, 16, 0), V(13.5, 16, 0)),  # 6
    Part.LineSegment(V(13.5, 16, 0), V(13.5, 18, 0)),  # 7
], False)
sketch12.addConstraint([
    Sketcher.Constraint("Coincident", 0, 2, 1, 1),
    Sketcher.Constraint("Coincident", 1, 2, 2, 1),
    Sketcher.Constraint("Coincident", 2, 2, 3, 1),
    Sketcher.Constraint("Coincident", 3, 2, 4, 1),
    Sketcher.Constraint("Coincident", 4, 2, 5, 1),
    Sketcher.Constraint("Coincident", 5, 2, 6, 1),
    Sketcher.Constraint("Coincident", 6, 2, 7, 1),
    Sketcher.Constraint("Coincident", 7, 2, 0, 1),
    Sketcher.Constraint("Horizontal", 0),
    Sketcher.Constraint("Vertical", 1),
    Sketcher.Constraint("Horizontal", 2),
    Sketcher.Constraint("Vertical", 3),
    Sketcher.Constraint("Horizontal", 4),
    Sketcher.Constraint("Vertical", 5),
    Sketcher.Constraint("Horizontal", 6),
    Sketcher.Constraint("Vertical", 7),
    Sketcher.Constraint("Vertical", 3, 2, 6, 2),
    Sketcher.Constraint("Equal", 3, 7),
    Sketcher.Constraint("DistanceX", 0, 1, 0, 2, Q("35 mm")),
    Sketcher.Constraint("DistanceX", 4, 1, 4, 2, Q("33 mm")),
    Sketcher.Constraint("DistanceY", 1, 2, 1, 1, Q("14 mm")),
    Sketcher.Constraint("DistanceY", 3, 1, 3, 2, Q("2 mm")),
    Sketcher.Constraint("DistanceY", -1, 1, 0, 2, Q("18 mm")),
    Sketcher.Constraint("DistanceX", -1, 1, 0, 2, Q("48.46 mm")),
])
sketch12.setExpression("Constraints[18]", "Params.sketch12_width")
sketch12.setExpression("Constraints[19]", "Params.sketch12_width2")
sketch12.setExpression("Constraints[20]", "Params.sketch12_height")
sketch12.setExpression("Constraints[21]", "Params.sketch12_height2")
pad4 = doc.addObject("PartDesign::Pad", "Pad003")
body.addObject(pad4)
pad4.Profile = sketch12
pad4.setExpression("Length", "Params.pad4_length")
pad4.Reversed = True
doc.recompute()

chamfer10 = doc.addObject("PartDesign::Chamfer", "Chamfer009")
body.addObject(chamfer10)
chamfer10.Base = (pad4, edges_at(pad4, [(-53.33, 13.46, 5), (-53.33, 13.46, 17)]))
chamfer10.setExpression("Size", "Params.chamfer10_size")
doc.recompute()

fillet = doc.addObject("PartDesign::Fillet", "Fillet")
body.addObject(fillet)
fillet.Base = (chamfer10, edges_at(chamfer10, [(-43.33, 46.46, 6), (-43.33, 46.46, 16)]))
fillet.setExpression("Radius", "Params.fillet_radius")
doc.recompute()

fillet2 = doc.addObject("PartDesign::Fillet", "Fillet001")
body.addObject(fillet2)
fillet2.Base = (fillet, edges_at(fillet, [(-53.33, 37.96, 16), (-43.83, 22.96, 16), (-43.83, 22.96, 6)]))
fillet2.setExpression("Radius", "Params.fillet2_radius")
doc.recompute()

fillet3 = doc.addObject("PartDesign::Fillet", "Fillet002")
body.addObject(fillet3)
fillet3.Base = (fillet2, edges_at(fillet2, [(-33.33, 20, 10.96)]))
fillet3.setExpression("Radius", "Params.fillet3_radius")
body2 = doc.addObject("PartDesign::Body", "Body001")
doc.recompute()

body.Placement = App.Placement(V(0, 0, -8.6), App.Rotation(V(0, 0, 1), 0))
boolean = doc.addObject("PartDesign::Boolean", "Boolean")
body2.addObject(boolean)
boolean.Type = "Fuse"
boolean.addObjects([body])

doc.recompute()
